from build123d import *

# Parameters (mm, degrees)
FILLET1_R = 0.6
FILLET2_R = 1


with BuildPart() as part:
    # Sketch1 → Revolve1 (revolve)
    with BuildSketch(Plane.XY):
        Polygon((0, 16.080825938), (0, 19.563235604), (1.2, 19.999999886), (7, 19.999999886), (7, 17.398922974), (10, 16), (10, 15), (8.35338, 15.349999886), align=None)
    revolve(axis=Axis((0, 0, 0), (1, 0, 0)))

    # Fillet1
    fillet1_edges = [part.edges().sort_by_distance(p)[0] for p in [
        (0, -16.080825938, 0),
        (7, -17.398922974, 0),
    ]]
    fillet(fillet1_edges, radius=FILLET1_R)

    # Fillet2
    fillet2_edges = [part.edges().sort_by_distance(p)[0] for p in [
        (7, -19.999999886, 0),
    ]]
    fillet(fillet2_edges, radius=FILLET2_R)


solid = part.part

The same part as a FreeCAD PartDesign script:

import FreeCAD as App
import Part
import Sketcher

V = App.Vector
Q = App.Units.Quantity


def edges_at(feature, points):
    """Names of the edges that pass closest to the given points."""
    edges = feature.Shape.Edges
    near = lambda p: min(range(len(edges)), key=lambda i: edges[i].distToShape(Part.Vertex(*p))[0])
    return sorted({f"Edge{near(p) + 1}" for p in points})

doc = App.newDocument("Part")
body = doc.addObject("PartDesign::Body", "Body")

sketch1 = body.newObject("Sketcher::SketchObject", "Sketch")
sketch1.AttachmentSupport = (doc.getObject("XY_Plane"), [""])
sketch1.MapMode = "FlatFace"
sketch1.addGeometry(Part.LineSegment(V(0, 19.6, 0), V(0, 16.1, 0)), False)
sketch1.addGeometry(Part.LineSegment(V(0, 16.1, 0), V(8.4, 15.3, 0)), False)
sketch1.addGeometry(Part.LineSegment(V(8.4, 15.3, 0), V(10, 15, 0)), False)
sketch1.addGeometry(Part.LineSegment(V(10, 15, 0), V(10, 16, 0)), False)
sketch1.addGeometry(Part.LineSegment(V(10, 16, 0), V(7, 17.4, 0)), False)
sketch1.addGeometry(Part.LineSegment(V(7, 17.4, 0), V(7, 20, 0)), False)
sketch1.addGeometry(Part.LineSegment(V(7, 20, 0), V(1.2, 20, 0)), False)
sketch1.addGeometry(Part.LineSegment(V(1.2, 20, 0), V(0, 19.6, 0)), False)
sketch1.addConstraint(Sketcher.Constraint("Coincident", 0, 2, 1, 1))
sketch1.addConstraint(Sketcher.Constraint("Coincident", 1, 2, 2, 1))
sketch1.addConstraint(Sketcher.Constraint("Coincident", 2, 2, 3, 1))
sketch1.addConstraint(Sketcher.Constraint("Coincident", 3, 2, 4, 1))
sketch1.addConstraint(Sketcher.Constraint("Coincident", 4, 2, 5, 1))
sketch1.addConstraint(Sketcher.Constraint("Coincident", 5, 2, 6, 1))
sketch1.addConstraint(Sketcher.Constraint("Coincident", 6, 2, 7, 1))
sketch1.addConstraint(Sketcher.Constraint("Coincident", 7, 2, 0, 1))
sketch1.addConstraint(Sketcher.Constraint("Vertical", 0))
sketch1.addConstraint(Sketcher.Constraint("Vertical", 3))
sketch1.addConstraint(Sketcher.Constraint("Vertical", 5))
sketch1.addConstraint(Sketcher.Constraint("Horizontal", 6))
sketch1.addConstraint(Sketcher.Constraint("PointOnObject", 0, 2, -2))
sketch1.addConstraint(Sketcher.Constraint("DistanceY", 3, 1, 3, 2, 1.0))
sketch1.addConstraint(Sketcher.Constraint("Angle", 1, Q("-5 deg")))
sketch1.addConstraint(Sketcher.Constraint("Angle", 2, Q("-12 deg")))
sketch1.addConstraint(Sketcher.Constraint("Angle", 4, Q("155 deg")))
sketch1.addConstraint(Sketcher.Constraint("Angle", 7, Q("-160 deg")))
sketch1.addConstraint(Sketcher.Constraint("DistanceX", 6, 2, 6, 1, 5.8))
sketch1.addConstraint(Sketcher.Constraint("DistanceX", -1, 1, 2, 2, 10.0))
sketch1.addConstraint(Sketcher.Constraint("DistanceY", -1, 1, 2, 2, 15.0))
sketch1.addConstraint(Sketcher.Constraint("DistanceX", -1, 1, 4, 2, 7.0))
sketch1.addConstraint(Sketcher.Constraint("DistanceY", -1, 1, 5, 2, 20.0))
sketch1.addConstraint(Sketcher.Constraint("DistanceY", -1, 1, 1, 2, 15.35))
revolution = body.newObject("PartDesign::Revolution", "Revolution")
revolution.Profile = sketch1
revolution.ReferenceAxis = (sketch1, ["H_Axis"])
revolution.Angle = 360
doc.recompute()

fillet = body.newObject("PartDesign::Fillet", "Fillet")
fillet.Base = (revolution, edges_at(revolution, [(0, -16.081, 0), (7, -17.399, 0)]))
fillet.Radius = 0.6
doc.recompute()

fillet2 = body.newObject("PartDesign::Fillet", "Fillet001")
fillet2.Base = (fillet, edges_at(fillet, [(7, -20, 0)]))
fillet2.Radius = 1

doc.recompute()
